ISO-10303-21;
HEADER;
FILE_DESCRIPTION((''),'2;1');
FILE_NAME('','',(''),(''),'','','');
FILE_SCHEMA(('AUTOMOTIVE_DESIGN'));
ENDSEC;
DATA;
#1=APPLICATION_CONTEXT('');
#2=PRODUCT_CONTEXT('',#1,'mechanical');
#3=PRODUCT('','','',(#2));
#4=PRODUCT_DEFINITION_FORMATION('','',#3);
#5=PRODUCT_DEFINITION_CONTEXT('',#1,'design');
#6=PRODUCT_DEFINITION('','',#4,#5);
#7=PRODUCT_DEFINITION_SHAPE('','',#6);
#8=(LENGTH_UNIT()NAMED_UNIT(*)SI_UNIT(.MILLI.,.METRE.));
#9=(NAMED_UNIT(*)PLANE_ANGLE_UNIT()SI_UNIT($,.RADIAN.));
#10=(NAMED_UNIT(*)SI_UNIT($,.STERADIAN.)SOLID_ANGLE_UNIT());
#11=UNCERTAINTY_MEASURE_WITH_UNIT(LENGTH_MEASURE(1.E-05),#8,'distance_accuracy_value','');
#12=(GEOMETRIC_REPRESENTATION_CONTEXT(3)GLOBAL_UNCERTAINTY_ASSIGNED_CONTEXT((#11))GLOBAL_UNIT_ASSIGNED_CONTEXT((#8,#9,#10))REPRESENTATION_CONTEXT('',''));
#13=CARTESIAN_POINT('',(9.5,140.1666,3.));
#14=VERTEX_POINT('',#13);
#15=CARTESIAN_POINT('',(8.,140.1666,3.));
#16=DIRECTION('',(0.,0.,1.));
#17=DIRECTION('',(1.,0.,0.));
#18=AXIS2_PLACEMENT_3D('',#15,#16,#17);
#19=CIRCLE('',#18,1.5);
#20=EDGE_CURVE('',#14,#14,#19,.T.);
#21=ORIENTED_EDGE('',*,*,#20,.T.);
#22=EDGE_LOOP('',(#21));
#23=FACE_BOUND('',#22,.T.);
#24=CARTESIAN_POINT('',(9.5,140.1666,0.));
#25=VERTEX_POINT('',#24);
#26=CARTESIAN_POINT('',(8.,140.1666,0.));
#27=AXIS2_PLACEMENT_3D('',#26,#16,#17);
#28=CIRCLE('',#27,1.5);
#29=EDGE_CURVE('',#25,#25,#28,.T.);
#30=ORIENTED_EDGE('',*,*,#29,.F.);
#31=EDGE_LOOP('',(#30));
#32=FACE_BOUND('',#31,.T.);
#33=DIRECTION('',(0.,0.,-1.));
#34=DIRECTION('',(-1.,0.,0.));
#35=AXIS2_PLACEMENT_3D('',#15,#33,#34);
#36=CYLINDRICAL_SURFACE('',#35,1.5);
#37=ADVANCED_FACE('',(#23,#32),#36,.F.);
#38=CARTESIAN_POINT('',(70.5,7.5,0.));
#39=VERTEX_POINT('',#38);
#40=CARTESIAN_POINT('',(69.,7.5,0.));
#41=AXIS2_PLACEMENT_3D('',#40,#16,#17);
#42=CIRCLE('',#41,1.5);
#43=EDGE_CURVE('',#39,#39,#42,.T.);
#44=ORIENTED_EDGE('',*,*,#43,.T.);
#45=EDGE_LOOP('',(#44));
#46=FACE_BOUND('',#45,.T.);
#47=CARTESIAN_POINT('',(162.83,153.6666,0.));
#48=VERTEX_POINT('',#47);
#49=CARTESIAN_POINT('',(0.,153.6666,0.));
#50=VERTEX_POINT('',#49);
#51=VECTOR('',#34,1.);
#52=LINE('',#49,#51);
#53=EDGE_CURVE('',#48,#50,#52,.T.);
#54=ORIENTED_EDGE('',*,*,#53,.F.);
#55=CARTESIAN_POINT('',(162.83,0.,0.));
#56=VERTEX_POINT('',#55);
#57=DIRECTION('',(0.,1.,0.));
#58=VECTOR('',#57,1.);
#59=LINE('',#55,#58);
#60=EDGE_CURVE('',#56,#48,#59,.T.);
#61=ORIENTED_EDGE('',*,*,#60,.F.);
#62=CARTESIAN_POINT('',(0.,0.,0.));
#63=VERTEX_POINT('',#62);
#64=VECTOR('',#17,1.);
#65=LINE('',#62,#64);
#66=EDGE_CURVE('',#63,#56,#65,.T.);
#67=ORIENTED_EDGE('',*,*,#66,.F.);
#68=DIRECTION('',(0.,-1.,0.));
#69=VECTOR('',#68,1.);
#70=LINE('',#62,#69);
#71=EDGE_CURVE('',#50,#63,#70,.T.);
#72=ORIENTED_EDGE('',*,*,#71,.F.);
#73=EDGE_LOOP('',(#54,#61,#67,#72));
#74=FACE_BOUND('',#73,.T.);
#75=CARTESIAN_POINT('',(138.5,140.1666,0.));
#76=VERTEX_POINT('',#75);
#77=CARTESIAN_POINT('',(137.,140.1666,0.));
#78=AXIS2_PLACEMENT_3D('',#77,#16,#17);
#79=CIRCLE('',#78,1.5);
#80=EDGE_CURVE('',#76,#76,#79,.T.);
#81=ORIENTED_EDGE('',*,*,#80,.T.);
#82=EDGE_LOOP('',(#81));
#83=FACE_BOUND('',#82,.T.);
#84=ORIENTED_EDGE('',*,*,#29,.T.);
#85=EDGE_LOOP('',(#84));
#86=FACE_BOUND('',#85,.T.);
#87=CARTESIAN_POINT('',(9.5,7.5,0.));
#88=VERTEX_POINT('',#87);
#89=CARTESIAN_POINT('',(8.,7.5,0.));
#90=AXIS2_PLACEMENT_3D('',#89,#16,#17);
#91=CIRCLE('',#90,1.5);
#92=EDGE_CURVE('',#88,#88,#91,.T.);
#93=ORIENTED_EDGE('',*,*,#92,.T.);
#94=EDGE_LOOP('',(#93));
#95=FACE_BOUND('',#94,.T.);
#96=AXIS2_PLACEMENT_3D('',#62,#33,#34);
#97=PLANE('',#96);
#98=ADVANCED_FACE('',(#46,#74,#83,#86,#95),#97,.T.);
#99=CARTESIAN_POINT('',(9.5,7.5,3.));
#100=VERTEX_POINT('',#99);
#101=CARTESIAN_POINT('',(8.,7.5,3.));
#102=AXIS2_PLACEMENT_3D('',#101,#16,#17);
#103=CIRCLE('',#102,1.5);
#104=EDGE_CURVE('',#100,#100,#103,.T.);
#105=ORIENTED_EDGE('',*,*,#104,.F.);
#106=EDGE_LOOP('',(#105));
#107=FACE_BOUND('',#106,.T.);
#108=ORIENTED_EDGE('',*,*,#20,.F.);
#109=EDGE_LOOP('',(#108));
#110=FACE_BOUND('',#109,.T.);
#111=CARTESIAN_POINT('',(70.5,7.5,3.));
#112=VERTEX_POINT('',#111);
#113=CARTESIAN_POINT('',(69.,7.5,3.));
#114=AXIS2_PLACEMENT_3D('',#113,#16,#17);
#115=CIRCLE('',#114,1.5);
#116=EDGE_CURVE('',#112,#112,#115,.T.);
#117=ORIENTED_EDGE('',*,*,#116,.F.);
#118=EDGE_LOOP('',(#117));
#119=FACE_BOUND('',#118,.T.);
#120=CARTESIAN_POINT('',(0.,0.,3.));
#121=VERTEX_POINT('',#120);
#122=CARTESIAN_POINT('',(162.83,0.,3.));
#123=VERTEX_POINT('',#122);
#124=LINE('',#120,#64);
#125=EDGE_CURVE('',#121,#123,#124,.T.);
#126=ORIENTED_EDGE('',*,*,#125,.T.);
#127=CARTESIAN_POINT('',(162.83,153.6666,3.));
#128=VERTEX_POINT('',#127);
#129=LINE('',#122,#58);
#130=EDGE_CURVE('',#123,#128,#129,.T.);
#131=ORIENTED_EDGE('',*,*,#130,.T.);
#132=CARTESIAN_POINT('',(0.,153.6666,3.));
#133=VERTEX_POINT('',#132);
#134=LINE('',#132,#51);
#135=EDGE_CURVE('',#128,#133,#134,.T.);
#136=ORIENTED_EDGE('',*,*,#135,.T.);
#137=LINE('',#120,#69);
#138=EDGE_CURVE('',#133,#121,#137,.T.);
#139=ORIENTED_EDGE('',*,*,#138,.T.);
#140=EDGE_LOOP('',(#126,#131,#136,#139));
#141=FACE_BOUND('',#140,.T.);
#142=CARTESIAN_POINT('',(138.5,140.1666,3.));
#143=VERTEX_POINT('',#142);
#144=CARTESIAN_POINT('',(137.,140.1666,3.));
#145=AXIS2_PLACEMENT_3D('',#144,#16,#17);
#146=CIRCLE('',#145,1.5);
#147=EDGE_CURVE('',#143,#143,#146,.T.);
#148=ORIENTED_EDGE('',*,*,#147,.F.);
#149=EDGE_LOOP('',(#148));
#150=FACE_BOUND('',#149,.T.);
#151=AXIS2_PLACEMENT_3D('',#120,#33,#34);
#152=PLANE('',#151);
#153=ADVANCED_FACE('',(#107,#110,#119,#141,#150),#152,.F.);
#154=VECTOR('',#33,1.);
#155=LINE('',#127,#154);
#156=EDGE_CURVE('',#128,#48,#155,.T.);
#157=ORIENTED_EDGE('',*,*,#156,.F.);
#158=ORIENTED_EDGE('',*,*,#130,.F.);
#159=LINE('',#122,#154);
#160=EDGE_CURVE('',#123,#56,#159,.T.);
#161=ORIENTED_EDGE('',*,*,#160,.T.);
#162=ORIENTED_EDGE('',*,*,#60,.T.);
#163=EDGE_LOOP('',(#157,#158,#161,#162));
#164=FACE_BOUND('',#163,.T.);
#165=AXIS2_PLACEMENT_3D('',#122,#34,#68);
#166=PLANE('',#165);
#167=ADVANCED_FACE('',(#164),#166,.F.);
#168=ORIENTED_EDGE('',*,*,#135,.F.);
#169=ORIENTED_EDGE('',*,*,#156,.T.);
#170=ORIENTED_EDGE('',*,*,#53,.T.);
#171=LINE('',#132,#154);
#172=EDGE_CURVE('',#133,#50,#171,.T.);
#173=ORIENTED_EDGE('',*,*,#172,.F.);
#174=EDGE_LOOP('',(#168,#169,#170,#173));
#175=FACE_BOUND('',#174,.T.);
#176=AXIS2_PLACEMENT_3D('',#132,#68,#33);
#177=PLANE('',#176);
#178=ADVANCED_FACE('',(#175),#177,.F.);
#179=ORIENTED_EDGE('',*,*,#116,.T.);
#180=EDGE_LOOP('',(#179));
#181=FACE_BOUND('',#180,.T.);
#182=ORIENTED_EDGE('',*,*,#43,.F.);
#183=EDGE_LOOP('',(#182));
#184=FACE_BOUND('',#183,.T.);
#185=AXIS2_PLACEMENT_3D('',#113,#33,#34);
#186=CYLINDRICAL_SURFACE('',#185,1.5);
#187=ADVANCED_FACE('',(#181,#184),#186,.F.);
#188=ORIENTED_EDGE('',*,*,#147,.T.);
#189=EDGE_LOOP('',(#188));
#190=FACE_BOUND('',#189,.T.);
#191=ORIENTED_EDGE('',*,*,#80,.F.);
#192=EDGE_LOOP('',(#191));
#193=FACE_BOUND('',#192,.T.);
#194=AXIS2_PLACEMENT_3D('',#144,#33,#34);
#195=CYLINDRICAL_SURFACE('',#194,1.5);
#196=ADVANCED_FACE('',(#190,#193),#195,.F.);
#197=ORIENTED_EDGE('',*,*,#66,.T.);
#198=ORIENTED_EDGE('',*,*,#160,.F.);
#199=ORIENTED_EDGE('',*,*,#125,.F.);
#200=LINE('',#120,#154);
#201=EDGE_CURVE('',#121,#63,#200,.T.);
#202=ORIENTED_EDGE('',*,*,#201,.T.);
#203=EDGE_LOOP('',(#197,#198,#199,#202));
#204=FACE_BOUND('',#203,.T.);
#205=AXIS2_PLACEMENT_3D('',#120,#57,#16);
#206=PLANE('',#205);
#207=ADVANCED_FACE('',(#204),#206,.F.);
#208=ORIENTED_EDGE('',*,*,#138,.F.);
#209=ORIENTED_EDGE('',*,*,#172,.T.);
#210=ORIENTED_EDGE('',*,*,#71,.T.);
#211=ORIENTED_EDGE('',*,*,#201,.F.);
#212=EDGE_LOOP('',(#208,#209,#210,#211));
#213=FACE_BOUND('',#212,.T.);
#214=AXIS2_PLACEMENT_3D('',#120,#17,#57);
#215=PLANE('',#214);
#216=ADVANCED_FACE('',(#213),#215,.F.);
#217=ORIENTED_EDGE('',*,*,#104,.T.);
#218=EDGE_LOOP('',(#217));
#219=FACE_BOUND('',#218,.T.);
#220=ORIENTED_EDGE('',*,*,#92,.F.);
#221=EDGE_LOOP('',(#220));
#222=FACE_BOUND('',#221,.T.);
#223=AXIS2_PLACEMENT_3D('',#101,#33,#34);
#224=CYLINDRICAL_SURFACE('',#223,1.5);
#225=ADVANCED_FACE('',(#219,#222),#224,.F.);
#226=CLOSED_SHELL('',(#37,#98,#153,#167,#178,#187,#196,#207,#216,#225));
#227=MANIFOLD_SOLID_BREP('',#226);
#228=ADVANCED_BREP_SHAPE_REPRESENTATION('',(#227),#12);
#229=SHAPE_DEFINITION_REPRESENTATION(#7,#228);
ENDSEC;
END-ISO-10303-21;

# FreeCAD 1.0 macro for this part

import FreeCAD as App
import Part
import Sketcher

doc = App.newDocument("Part")
body = doc.addObject("PartDesign::Body", "Body")

# Sketch on XY plane
sketch1 = doc.addObject("Sketcher::SketchObject", "Sketch")
body.addObject(sketch1)
sketch1.AttachmentSupport = (doc.XY_Plane, [""])
sketch1.MapMode = "FlatFace"
sketch1.addGeometry([
    Part.LineSegment(App.Vector(0, 153.6666, 0), App.Vector(0, 0, 0)),  # 0
    Part.LineSegment(App.Vector(0, 0, 0), App.Vector(162.83, 0, 0)),  # 1
    Part.LineSegment(App.Vector(162.83, 0, 0), App.Vector(162.83, 153.6666, 0)),  # 2
    Part.LineSegment(App.Vector(162.83, 153.6666, 0), App.Vector(0, 153.6666, 0)),  # 3
    Part.Circle(App.Vector(8, 7.5, 0), App.Vector(0, 0, 1), 1.5),  # 4
    Part.Circle(App.Vector(69, 7.5, 0), App.Vector(0, 0, 1), 1.5),  # 5
    Part.Circle(App.Vector(8, 140.1666, 0), App.Vector(0, 0, 1), 1.5),  # 6
    Part.Circle(App.Vector(137, 140.1666, 0), App.Vector(0, 0, 1), 1.5),  # 7
], False)
sketch1.addConstraint([
    Sketcher.Constraint("Coincident", 0, 2, 1, 1),
    Sketcher.Constraint("Coincident", 1, 2, 2, 1),
    Sketcher.Constraint("Coincident", 2, 2, 3, 1),
    Sketcher.Constraint("Coincident", 3, 2, 0, 1),
    Sketcher.Constraint("Vertical", 0),
    Sketcher.Constraint("Horizontal", 1),
    Sketcher.Constraint("Vertical", 2),
    Sketcher.Constraint("Horizontal", 3),
    Sketcher.Constraint("Coincident", 0, 2, -1, 1),
    Sketcher.Constraint("Equal", 4, 5),
    Sketcher.Constraint("Equal", 5, 6),
    Sketcher.Constraint("Equal", 6, 7),
    Sketcher.Constraint("Horizontal", 4, 3, 5, 3),
    Sketcher.Constraint("Horizontal", 6, 3, 7, 3),
    Sketcher.Constraint("Vertical", 4, 3, 6, 3),
    Sketcher.Constraint("Diameter", 4, 3.0),
    Sketcher.Constraint("DistanceX", -1, 1, 4, 3, 8.0),
    Sketcher.Constraint("DistanceX", -1, 1, 5, 3, 69.0),
    Sketcher.Constraint("DistanceX", -1, 1, 7, 3, 137.0),
    Sketcher.Constraint("DistanceX", 1, 1, 1, 2, 162.83),
    Sketcher.Constraint("DistanceY", -1, 1, 4, 3, 7.5),
    Sketcher.Constraint("DistanceY", 7, 3, 2, 2, 13.5),
    Sketcher.Constraint("DistanceY", 0, 2, 0, 1, 153.6666),
])
pad1 = doc.addObject("PartDesign::Pad", "Pad")
body.addObject(pad1)
pad1.Profile = sketch1
pad1.Length = 3

doc.recompute()
